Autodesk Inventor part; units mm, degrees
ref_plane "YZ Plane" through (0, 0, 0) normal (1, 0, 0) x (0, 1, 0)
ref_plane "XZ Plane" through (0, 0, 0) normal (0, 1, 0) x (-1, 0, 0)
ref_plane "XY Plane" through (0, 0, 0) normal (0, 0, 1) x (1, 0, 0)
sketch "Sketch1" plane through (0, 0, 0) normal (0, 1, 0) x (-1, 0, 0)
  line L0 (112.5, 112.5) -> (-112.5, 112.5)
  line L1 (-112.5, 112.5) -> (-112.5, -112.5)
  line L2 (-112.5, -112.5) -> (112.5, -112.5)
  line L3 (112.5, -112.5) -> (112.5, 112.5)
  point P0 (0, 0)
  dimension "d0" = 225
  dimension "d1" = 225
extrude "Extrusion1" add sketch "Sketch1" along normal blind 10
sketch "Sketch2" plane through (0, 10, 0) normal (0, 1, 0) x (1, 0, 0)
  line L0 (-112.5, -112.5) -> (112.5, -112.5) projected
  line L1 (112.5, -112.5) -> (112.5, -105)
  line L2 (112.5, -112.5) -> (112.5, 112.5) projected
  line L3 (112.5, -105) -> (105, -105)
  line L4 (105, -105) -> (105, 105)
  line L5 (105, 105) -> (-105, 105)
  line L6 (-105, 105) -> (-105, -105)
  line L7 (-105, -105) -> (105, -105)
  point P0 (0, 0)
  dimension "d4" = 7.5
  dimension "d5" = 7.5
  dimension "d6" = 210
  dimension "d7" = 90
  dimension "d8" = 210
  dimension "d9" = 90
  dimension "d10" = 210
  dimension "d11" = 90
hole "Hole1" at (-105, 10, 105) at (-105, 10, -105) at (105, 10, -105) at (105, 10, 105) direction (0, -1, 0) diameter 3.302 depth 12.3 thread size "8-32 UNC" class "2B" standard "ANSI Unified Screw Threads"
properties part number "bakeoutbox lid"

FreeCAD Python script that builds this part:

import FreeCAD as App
import Part
import Sketcher

V = App.Vector
Q = App.Units.Quantity

doc = App.newDocument("Part")
params = doc.addObject("Spreadsheet::Sheet", "Params")
for row, (alias, value) in enumerate([
    ("sketch1_width", "225 mm"),
    ("pad1_length", "10 mm"),
    ("hole_diameter", "3.302 mm"),
    ("hole_depth", "12.3 mm"),
], start=1):
    params.set(f"A{row}", alias)
    params.set(f"B{row}", "=" + value)
    params.setAlias(f"B{row}", alias)

body = doc.addObject("PartDesign::Body", "Body")

# Sketch on XZ plane
sketch1 = body.newObject("Sketcher::SketchObject", "Sketch")
sketch1.AttachmentSupport = (doc.getObject("XZ_Plane"), [""])
sketch1.MapMode = "FlatFace"
sketch1.addGeometry(Part.LineSegment(V(-112, -112, 0), V(-112, 112, 0)), False)
sketch1.addGeometry(Part.LineSegment(V(-112, 112, 0), V(112, 112, 0)), False)
sketch1.addGeometry(Part.LineSegment(V(112, 112, 0), V(112, -112, 0)), False)
sketch1.addGeometry(Part.LineSegment(V(112, -112, 0), V(-112, -112, 0)), False)
sketch1.addConstraint(Sketcher.Constraint("Coincident", 0, 2, 1, 1))
sketch1.addConstraint(Sketcher.Constraint("Coincident", 1, 2, 2, 1))
sketch1.addConstraint(Sketcher.Constraint("Coincident", 2, 2, 3, 1))
sketch1.addConstraint(Sketcher.Constraint("Coincident", 3, 2, 0, 1))
sketch1.addConstraint(Sketcher.Constraint("Vertical", 0))
sketch1.addConstraint(Sketcher.Constraint("Horizontal", 1))
sketch1.addConstraint(Sketcher.Constraint("Vertical", 2))
sketch1.addConstraint(Sketcher.Constraint("Horizontal", 3))
sketch1.addConstraint(Sketcher.Constraint("Symmetric", 0, 2, 2, 2, -1, 1))
sketch1.addConstraint(Sketcher.Constraint("Equal", 3, 0))
sketch1.addConstraint(Sketcher.Constraint("DistanceX", 1, 1, 1, 2, Q("225 mm")))
sketch1.setExpression("Constraints[10]", "Params.sketch1_width")
pad1 = body.newObject("PartDesign::Pad", "Pad")
pad1.Profile = sketch1
pad1.setExpression("Length", "Params.pad1_length")
pad1.Reversed = True

# Sketch on XZ plane
sketch2 = body.newObject("Sketcher::SketchObject", "Sketch001")
sketch2.AttachmentSupport = (doc.getObject("XZ_Plane"), [""])
sketch2.MapMode = "FlatFace"
sketch2.AttachmentOffset = App.Placement(V(0, 0, -10), App.Rotation())
sketch2.addGeometry(Part.Circle(V(-105, 105, 0), V(0, 0, 1), 1.7), False)
sketch2.addGeometry(Part.Circle(V(-105, -105, 0), V(0, 0, 1), 1.7), False)
sketch2.addGeometry(Part.Circle(V(105, -105, 0), V(0, 0, 1), 1.7), False)
sketch2.addGeometry(Part.Circle(V(105, 105, 0), V(0, 0, 1), 1.7), False)
sketch2.addConstraint(Sketcher.Constraint("Equal", 0, 1))
sketch2.addConstraint(Sketcher.Constraint("Equal", 1, 2))
sketch2.addConstraint(Sketcher.Constraint("Equal", 2, 3))
sketch2.addConstraint(Sketcher.Constraint("Symmetric", 0, 3, 2, 3, -1, 1))
sketch2.addConstraint(Sketcher.Constraint("Symmetric", 1, 3, 3, 3, -1, 1))
sketch2.addConstraint(Sketcher.Constraint("Symmetric", 1, 3, 2, 3, -2))
sketch2.addConstraint(Sketcher.Constraint("Diameter", 0, Q("3.302 mm")))
sketch2.addConstraint(Sketcher.Constraint("DistanceX", 0, 3, -1, 1, Q("105 mm")))
sketch2.addConstraint(Sketcher.Constraint("DistanceY", -1, 1, 0, 3, Q("105 mm")))
doc.recompute()
hole = body.newObject("PartDesign::Hole", "Hole")
hole.Profile = sketch2
hole.ThreadType = "None"
hole.setExpression("Diameter", "Params.hole_diameter")
hole.DepthType = "Dimension"
hole.setExpression("Depth", "Params.hole_depth")
hole.DrillPoint = "Flat"
hole.Reversed = True

doc.recompute()
